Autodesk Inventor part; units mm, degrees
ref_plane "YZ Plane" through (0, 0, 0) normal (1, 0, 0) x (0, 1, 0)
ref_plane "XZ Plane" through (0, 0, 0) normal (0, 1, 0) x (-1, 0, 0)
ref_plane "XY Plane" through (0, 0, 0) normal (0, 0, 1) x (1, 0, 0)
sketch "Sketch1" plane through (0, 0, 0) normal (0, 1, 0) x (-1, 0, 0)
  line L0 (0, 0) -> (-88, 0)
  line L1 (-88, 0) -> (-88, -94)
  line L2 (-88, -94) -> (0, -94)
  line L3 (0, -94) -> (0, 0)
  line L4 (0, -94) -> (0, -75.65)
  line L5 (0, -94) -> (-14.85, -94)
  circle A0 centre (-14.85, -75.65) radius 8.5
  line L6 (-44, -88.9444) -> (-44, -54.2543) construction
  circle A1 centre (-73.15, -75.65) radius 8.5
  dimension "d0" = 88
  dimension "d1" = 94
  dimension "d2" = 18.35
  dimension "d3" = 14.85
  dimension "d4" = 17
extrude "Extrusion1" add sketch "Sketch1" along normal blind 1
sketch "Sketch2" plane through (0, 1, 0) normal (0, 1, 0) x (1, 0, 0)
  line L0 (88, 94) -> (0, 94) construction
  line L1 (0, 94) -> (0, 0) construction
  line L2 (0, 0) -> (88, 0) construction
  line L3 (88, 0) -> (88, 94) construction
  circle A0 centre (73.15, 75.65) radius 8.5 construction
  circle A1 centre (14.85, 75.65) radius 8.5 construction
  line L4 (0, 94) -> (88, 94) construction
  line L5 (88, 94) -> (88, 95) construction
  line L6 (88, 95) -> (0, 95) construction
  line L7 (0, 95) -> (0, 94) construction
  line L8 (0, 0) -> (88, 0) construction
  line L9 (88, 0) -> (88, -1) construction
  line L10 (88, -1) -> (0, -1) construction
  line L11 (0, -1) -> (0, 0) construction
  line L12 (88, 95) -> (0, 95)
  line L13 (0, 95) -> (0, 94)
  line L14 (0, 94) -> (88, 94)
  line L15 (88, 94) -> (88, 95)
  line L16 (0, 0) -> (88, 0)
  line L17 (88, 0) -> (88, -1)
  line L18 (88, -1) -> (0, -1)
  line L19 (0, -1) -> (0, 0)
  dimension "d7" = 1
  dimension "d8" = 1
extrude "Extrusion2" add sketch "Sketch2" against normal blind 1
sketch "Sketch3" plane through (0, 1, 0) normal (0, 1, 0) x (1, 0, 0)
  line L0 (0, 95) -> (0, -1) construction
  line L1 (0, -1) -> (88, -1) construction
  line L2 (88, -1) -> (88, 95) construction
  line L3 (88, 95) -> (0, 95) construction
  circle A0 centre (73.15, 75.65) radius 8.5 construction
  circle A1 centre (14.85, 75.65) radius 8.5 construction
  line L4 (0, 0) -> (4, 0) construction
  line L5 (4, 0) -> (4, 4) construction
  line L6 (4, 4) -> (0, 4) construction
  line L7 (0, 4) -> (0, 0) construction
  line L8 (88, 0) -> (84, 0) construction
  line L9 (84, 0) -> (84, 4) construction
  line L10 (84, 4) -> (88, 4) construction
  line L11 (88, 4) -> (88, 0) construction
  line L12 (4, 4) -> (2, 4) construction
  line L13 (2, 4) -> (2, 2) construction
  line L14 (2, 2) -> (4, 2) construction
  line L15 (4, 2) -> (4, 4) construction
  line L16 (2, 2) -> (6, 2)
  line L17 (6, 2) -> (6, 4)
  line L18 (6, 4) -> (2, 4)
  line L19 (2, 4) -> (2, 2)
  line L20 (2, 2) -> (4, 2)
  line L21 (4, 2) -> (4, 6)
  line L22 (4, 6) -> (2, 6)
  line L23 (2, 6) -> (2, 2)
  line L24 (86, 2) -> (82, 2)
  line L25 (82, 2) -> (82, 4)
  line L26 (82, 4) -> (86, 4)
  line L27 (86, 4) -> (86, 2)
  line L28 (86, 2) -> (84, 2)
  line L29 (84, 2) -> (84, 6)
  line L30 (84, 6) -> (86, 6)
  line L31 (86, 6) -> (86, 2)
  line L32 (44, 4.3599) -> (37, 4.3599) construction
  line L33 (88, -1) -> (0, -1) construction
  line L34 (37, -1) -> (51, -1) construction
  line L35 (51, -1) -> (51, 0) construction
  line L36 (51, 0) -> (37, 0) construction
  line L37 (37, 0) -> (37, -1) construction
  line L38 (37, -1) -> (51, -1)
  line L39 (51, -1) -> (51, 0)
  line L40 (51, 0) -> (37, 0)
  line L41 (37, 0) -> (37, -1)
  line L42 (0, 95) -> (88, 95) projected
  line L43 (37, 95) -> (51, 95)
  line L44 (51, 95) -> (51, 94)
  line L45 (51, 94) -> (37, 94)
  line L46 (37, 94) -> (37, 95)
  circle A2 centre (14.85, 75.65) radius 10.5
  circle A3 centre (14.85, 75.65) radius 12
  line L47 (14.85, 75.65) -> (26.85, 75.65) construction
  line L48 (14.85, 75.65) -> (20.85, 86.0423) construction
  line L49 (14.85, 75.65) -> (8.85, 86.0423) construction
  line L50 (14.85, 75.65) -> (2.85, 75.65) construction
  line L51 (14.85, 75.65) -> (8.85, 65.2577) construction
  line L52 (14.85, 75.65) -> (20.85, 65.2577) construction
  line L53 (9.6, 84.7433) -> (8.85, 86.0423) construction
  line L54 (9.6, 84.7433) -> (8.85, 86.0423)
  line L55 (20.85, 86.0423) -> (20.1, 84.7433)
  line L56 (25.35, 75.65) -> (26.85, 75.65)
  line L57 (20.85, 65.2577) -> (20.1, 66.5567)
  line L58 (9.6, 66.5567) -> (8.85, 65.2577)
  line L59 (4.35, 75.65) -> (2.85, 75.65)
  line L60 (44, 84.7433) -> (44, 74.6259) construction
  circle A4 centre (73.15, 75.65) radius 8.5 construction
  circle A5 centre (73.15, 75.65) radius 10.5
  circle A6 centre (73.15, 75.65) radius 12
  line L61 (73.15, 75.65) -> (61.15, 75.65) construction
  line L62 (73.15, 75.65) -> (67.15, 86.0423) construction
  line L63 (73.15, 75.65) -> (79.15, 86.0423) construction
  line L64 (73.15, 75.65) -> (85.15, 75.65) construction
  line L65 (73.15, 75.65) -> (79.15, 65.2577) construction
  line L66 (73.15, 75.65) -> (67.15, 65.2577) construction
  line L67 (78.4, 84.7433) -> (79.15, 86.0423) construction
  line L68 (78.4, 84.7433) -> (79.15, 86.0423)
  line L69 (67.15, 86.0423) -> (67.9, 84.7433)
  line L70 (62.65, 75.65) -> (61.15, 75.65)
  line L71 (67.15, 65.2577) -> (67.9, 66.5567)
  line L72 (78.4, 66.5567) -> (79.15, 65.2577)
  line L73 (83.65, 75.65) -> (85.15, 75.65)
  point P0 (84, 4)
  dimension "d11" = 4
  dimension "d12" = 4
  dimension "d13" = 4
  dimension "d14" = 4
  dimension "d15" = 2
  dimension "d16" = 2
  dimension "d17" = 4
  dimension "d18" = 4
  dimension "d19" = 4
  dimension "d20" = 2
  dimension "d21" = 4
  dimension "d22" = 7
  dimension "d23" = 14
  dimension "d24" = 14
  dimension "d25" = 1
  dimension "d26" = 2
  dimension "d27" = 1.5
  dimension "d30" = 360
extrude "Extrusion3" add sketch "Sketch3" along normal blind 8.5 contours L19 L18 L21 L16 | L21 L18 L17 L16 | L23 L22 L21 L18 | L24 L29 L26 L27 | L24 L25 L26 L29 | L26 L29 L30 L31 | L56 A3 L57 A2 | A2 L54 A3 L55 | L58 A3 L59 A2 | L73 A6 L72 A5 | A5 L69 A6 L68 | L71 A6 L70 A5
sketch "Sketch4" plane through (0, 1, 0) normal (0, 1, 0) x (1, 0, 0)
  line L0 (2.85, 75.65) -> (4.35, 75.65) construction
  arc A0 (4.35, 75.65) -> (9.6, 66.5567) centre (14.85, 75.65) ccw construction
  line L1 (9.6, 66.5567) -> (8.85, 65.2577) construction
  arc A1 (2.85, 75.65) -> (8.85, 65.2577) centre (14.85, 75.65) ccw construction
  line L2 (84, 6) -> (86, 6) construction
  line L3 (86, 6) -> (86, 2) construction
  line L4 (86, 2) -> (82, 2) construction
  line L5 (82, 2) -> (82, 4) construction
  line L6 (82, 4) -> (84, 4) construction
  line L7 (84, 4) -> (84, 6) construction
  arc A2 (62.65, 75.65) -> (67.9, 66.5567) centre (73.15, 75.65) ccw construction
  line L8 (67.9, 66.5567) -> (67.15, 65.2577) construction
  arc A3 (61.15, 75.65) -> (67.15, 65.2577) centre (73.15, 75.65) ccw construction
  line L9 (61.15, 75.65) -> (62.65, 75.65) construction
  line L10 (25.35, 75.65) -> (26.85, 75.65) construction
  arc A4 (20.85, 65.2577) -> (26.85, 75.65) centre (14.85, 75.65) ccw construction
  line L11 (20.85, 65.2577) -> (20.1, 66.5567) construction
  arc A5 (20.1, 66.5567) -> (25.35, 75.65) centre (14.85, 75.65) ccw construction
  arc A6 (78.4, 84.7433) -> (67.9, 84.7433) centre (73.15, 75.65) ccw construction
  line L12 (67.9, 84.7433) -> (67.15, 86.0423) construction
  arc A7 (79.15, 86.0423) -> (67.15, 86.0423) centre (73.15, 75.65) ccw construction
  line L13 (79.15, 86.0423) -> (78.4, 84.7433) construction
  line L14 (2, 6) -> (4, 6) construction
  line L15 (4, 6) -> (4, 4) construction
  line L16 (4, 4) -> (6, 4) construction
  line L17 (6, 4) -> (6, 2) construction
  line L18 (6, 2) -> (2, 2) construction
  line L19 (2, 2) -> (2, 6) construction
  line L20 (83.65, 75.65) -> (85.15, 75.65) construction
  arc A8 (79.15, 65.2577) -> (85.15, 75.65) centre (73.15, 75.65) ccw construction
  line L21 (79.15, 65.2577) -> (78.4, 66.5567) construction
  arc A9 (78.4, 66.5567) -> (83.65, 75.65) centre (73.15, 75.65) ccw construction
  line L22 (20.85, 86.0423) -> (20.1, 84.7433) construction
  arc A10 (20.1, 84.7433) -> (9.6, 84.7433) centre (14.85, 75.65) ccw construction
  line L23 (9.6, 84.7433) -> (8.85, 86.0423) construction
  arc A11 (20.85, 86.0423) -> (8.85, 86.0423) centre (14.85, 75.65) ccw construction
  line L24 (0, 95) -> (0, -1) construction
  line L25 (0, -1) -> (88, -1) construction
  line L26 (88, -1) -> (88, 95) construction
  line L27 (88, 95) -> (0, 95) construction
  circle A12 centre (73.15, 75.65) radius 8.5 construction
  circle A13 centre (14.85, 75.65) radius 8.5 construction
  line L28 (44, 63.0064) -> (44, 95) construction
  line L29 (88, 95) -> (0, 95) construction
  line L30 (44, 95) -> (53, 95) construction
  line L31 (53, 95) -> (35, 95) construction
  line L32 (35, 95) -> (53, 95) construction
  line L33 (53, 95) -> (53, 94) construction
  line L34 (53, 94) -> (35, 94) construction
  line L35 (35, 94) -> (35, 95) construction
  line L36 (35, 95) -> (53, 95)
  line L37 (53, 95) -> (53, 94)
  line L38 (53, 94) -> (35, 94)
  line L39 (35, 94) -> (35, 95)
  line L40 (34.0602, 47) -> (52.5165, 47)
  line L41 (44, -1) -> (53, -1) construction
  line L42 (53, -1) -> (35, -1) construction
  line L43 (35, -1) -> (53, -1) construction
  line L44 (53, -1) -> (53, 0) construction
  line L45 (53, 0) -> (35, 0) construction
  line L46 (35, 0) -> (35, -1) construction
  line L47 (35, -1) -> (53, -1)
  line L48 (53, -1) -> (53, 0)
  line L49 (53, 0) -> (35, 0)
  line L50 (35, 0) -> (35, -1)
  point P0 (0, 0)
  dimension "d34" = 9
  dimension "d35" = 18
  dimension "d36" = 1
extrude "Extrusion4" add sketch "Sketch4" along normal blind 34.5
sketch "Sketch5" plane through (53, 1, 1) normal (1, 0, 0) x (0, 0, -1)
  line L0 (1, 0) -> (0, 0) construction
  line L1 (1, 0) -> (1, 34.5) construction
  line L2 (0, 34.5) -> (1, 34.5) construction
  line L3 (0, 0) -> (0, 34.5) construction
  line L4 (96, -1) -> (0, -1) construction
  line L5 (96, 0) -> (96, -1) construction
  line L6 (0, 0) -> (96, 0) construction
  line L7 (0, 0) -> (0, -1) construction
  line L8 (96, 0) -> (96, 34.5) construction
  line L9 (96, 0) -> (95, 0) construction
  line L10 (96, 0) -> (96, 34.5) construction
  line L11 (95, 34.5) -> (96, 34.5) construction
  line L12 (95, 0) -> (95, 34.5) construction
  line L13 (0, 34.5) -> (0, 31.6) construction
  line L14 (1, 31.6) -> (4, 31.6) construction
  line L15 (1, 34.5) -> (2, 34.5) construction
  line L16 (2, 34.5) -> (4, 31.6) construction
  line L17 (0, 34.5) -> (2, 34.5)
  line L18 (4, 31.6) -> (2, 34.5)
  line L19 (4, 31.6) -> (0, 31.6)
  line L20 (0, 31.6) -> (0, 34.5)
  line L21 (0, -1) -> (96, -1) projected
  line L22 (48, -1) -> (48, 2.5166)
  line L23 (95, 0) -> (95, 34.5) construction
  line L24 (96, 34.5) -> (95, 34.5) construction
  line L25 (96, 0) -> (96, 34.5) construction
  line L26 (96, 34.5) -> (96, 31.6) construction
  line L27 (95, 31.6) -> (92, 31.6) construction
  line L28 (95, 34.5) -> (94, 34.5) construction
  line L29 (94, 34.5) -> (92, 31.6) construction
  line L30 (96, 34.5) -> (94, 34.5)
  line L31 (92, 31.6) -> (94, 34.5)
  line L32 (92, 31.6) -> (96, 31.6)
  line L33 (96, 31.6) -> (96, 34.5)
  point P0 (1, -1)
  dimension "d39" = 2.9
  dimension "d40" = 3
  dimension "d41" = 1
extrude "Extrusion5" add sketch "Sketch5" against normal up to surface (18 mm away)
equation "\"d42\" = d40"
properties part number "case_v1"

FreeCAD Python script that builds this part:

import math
import FreeCAD as App
import Part
import Sketcher
Q = App.Units.Quantity


def add_polygon(sketch, points):
    """Adds a closed chain of lines whose ends are joined by coincident constraints."""
    first, n = sketch.GeometryCount, len(points)
    for a, b in zip(points, points[1:] + points[:1]):
        sketch.addGeometry(Part.LineSegment(App.Vector(*a, 0), App.Vector(*b, 0)), False)
    for i in range(n):
        sketch.addConstraint(Sketcher.Constraint("Coincident", first + i, 2, first + (i + 1) % n, 1))

doc = App.newDocument("Part")
body = doc.addObject("PartDesign::Body", "Body")

# Sketch on XZ plane
sketch1 = doc.addObject("Sketcher::SketchObject", "Sketch")
body.addObject(sketch1)
sketch1.AttachmentSupport = (doc.XZ_Plane, [""])
sketch1.MapMode = "FlatFace"
add_polygon(sketch1, [(0, -94), (0, 0), (88, 0), (88, -94)])  # lines 0-3
sketch1.addGeometry(Part.Circle(App.Vector(73, -76, 0), App.Vector(0, 0, 1), 8), False)  # 4
sketch1.addGeometry(Part.Circle(App.Vector(15, -76, 0), App.Vector(0, 0, 1), 8), False)  # 5
sketch1.addConstraint(Sketcher.Constraint("Vertical", 0))
sketch1.addConstraint(Sketcher.Constraint("Horizontal", 1))
sketch1.addConstraint(Sketcher.Constraint("Vertical", 2))
sketch1.addConstraint(Sketcher.Constraint("Horizontal", 3))
sketch1.addConstraint(Sketcher.Constraint("Coincident", 0, 2, -1, 1))
sketch1.addConstraint(Sketcher.Constraint("Equal", 4, 5))
sketch1.addConstraint(Sketcher.Constraint("Horizontal", 4, 3, 5, 3))
sketch1.addConstraint(Sketcher.Constraint("Diameter", 4, Q("17 mm")))
sketch1.addConstraint(Sketcher.Constraint("DistanceX", 1, 1, 1, 2, Q("88 mm")))
sketch1.addConstraint(Sketcher.Constraint("DistanceY", 0, 1, 0, 2, Q("94 mm")))
sketch1.addConstraint(Sketcher.Constraint("DistanceX", -1, 1, 5, 3, Q("14.85 mm")))
sketch1.addConstraint(Sketcher.Constraint("DistanceX", 4, 3, 1, 2, Q("14.85 mm")))
sketch1.addConstraint(Sketcher.Constraint("DistanceY", 2, 2, 4, 3, Q("18.35 mm")))
pad1 = doc.addObject("PartDesign::Pad", "Pad")
body.addObject(pad1)
pad1.Profile = sketch1
pad1.Length = 1
pad1.Reversed = True

# Sketch on XZ plane
sketch2 = doc.addObject("Sketcher::SketchObject", "Sketch001")
body.addObject(sketch2)
sketch2.AttachmentSupport = (doc.XZ_Plane, [""])
sketch2.MapMode = "FlatFace"
sketch2.AttachmentOffset = App.Placement(App.Vector(0, 0, -1), App.Rotation())
add_polygon(sketch2, [(88, -94), (88, -95), (0, -95), (0, -94)])  # lines 0-3
add_polygon(sketch2, [(88, 0), (0, 0), (0, 1), (88, 1)])  # lines 4-7
sketch2.addConstraint(Sketcher.Constraint("Vertical", 0))
sketch2.addConstraint(Sketcher.Constraint("Horizontal", 1))
sketch2.addConstraint(Sketcher.Constraint("Vertical", 2))
sketch2.addConstraint(Sketcher.Constraint("Horizontal", 3))
sketch2.addConstraint(Sketcher.Constraint("Horizontal", 4))
sketch2.addConstraint(Sketcher.Constraint("Vertical", 5))
sketch2.addConstraint(Sketcher.Constraint("Horizontal", 6))
sketch2.addConstraint(Sketcher.Constraint("Vertical", 7))
sketch2.addConstraint(Sketcher.Constraint("Coincident", 4, 2, -1, 1))
sketch2.addConstraint(Sketcher.Constraint("PointOnObject", 1, 2, -2))
sketch2.addConstraint(Sketcher.Constraint("Vertical", 3, 2, 6, 2))
sketch2.addConstraint(Sketcher.Constraint("Equal", 2, 5))
sketch2.addConstraint(Sketcher.Constraint("DistanceY", 0, 2, 0, 1, Q("1 mm")))
sketch2.addConstraint(Sketcher.Constraint("DistanceX", 1, 2, 1, 1, Q("88 mm")))
sketch2.addConstraint(Sketcher.Constraint("DistanceY", 0, 2, -1, 1, Q("95 mm")))
pad2 = doc.addObject("PartDesign::Pad", "Pad001")
body.addObject(pad2)
pad2.Profile = sketch2
pad2.Length = 1

# Sketch on XZ plane
sketch3 = doc.addObject("Sketcher::SketchObject", "Sketch002")
body.addObject(sketch3)
sketch3.AttachmentSupport = (doc.XZ_Plane, [""])
sketch3.MapMode = "FlatFace"
sketch3.AttachmentOffset = App.Placement(App.Vector(0, 0, -1), App.Rotation())
add_polygon(sketch3, [(2, -2), (6, -2), (6, -4), (4, -4), (4, -6), (2, -6)])  # lines 0-5
add_polygon(sketch3, [(86, -2), (86, -6), (84, -6), (84, -4), (82, -4), (82, -2)])  # lines 6-11
sketch3.addGeometry(Part.LineSegment(App.Vector(26.9, -75.7, 0), App.Vector(25.4, -75.7, 0)), False)  # 12
sketch3.addGeometry(Part.ArcOfCircle(Part.Circle(App.Vector(14.8, -75.7, 0), App.Vector(0, 0, 1), 10.5), math.radians(0), math.radians(60)), False)  # 13
sketch3.addGeometry(Part.LineSegment(App.Vector(20.1, -66.6, 0), App.Vector(20.9, -65.3, 0)), False)  # 14
sketch3.addGeometry(Part.ArcOfCircle(Part.Circle(App.Vector(14.8, -75.7, 0), App.Vector(0, 0, 1), 12), math.radians(0), math.radians(60)), False)  # 15
sketch3.addGeometry(Part.ArcOfCircle(Part.Circle(App.Vector(14.8, -75.7, 0), App.Vector(0, 0, 1), 10.5), math.radians(-120), math.radians(-60)), False)  # 16
sketch3.addGeometry(Part.LineSegment(App.Vector(20.1, -84.7, 0), App.Vector(20.9, -86, 0)), False)  # 17
sketch3.addGeometry(Part.ArcOfCircle(Part.Circle(App.Vector(14.8, -75.7, 0), App.Vector(0, 0, 1), 12), math.radians(-120), math.radians(-60)), False)  # 18
sketch3.addGeometry(Part.LineSegment(App.Vector(8.8, -86, 0), App.Vector(9.6, -84.7, 0)), False)  # 19
sketch3.addGeometry(Part.LineSegment(App.Vector(8.8, -65.3, 0), App.Vector(9.6, -66.6, 0)), False)  # 20
sketch3.addGeometry(Part.ArcOfCircle(Part.Circle(App.Vector(14.8, -75.7, 0), App.Vector(0, 0, 1), 10.5), math.radians(120), math.radians(180)), False)  # 21
sketch3.addGeometry(Part.LineSegment(App.Vector(4.3, -75.7, 0), App.Vector(2.9, -75.7, 0)), False)  # 22
sketch3.addGeometry(Part.ArcOfCircle(Part.Circle(App.Vector(14.8, -75.7, 0), App.Vector(0, 0, 1), 12), math.radians(120), math.radians(180)), False)  # 23
sketch3.addGeometry(Part.LineSegment(App.Vector(85.2, -75.7, 0), App.Vector(83.7, -75.7, 0)), False)  # 24
sketch3.addGeometry(Part.ArcOfCircle(Part.Circle(App.Vector(73.2, -75.7, 0), App.Vector(0, 0, 1), 10.5), math.radians(0), math.radians(60)), False)  # 25
sketch3.addGeometry(Part.LineSegment(App.Vector(78.4, -66.6, 0), App.Vector(79.2, -65.3, 0)), False)  # 26
sketch3.addGeometry(Part.ArcOfCircle(Part.Circle(App.Vector(73.2, -75.7, 0), App.Vector(0, 0, 1), 12), math.radians(0), math.radians(60)), False)  # 27
sketch3.addGeometry(Part.ArcOfCircle(Part.Circle(App.Vector(73.2, -75.7, 0), App.Vector(0, 0, 1), 10.5), math.radians(-120), math.radians(-60)), False)  # 28
sketch3.addGeometry(Part.LineSegment(App.Vector(78.4, -84.7, 0), App.Vector(79.2, -86, 0)), False)  # 29
sketch3.addGeometry(Part.ArcOfCircle(Part.Circle(App.Vector(73.2, -75.7, 0), App.Vector(0, 0, 1), 12), math.radians(-120), math.radians(-60)), False)  # 30
sketch3.addGeometry(Part.LineSegment(App.Vector(67.2, -86, 0), App.Vector(67.9, -84.7, 0)), False)  # 31
sketch3.addGeometry(Part.LineSegment(App.Vector(67.2, -65.3, 0), App.Vector(67.9, -66.6, 0)), False)  # 32
sketch3.addGeometry(Part.ArcOfCircle(Part.Circle(App.Vector(73.2, -75.7, 0), App.Vector(0, 0, 1), 10.5), math.radians(120), math.radians(180)), False)  # 33
sketch3.addGeometry(Part.LineSegment(App.Vector(62.6, -75.7, 0), App.Vector(61.1, -75.7, 0)), False)  # 34
sketch3.addGeometry(Part.ArcOfCircle(Part.Circle(App.Vector(73.2, -75.7, 0), App.Vector(0, 0, 1), 12), math.radians(120), math.radians(180)), False)  # 35
sketch3.addConstraint(Sketcher.Constraint("Coincident", 12, 2, 13, 1))
sketch3.addConstraint(Sketcher.Constraint("Coincident", 13, 2, 14, 1))
sketch3.addConstraint(Sketcher.Constraint("Coincident", 14, 2, 15, 2))
sketch3.addConstraint(Sketcher.Constraint("Coincident", 15, 1, 12, 1))
sketch3.addConstraint(Sketcher.Constraint("Coincident", 16, 2, 17, 1))
sketch3.addConstraint(Sketcher.Constraint("Coincident", 17, 2, 18, 2))
sketch3.addConstraint(Sketcher.Constraint("Coincident", 18, 1, 19, 1))
sketch3.addConstraint(Sketcher.Constraint("Coincident", 19, 2, 16, 1))
sketch3.addConstraint(Sketcher.Constraint("Coincident", 20, 2, 21, 1))
sketch3.addConstraint(Sketcher.Constraint("Coincident", 21, 2, 22, 1))
sketch3.addConstraint(Sketcher.Constraint("Coincident", 22, 2, 23, 2))
sketch3.addConstraint(Sketcher.Constraint("Coincident", 23, 1, 20, 1))
sketch3.addConstraint(Sketcher.Constraint("Coincident", 24, 2, 25, 1))
sketch3.addConstraint(Sketcher.Constraint("Coincident", 25, 2, 26, 1))
sketch3.addConstraint(Sketcher.Constraint("Coincident", 26, 2, 27, 2))
sketch3.addConstraint(Sketcher.Constraint("Coincident", 27, 1, 24, 1))
sketch3.addConstraint(Sketcher.Constraint("Coincident", 28, 2, 29, 1))
sketch3.addConstraint(Sketcher.Constraint("Coincident", 29, 2, 30, 2))
sketch3.addConstraint(Sketcher.Constraint("Coincident", 30, 1, 31, 1))
sketch3.addConstraint(Sketcher.Constraint("Coincident", 31, 2, 28, 1))
sketch3.addConstraint(Sketcher.Constraint("Coincident", 32, 2, 33, 1))
sketch3.addConstraint(Sketcher.Constraint("Coincident", 33, 2, 34, 1))
sketch3.addConstraint(Sketcher.Constraint("Coincident", 34, 2, 35, 2))
sketch3.addConstraint(Sketcher.Constraint("Coincident", 35, 1, 32, 1))
sketch3.addConstraint(Sketcher.Constraint("Horizontal", 0))
sketch3.addConstraint(Sketcher.Constraint("Vertical", 1))
sketch3.addConstraint(Sketcher.Constraint("Horizontal", 2))
sketch3.addConstraint(Sketcher.Constraint("Vertical", 3))
sketch3.addConstraint(Sketcher.Constraint("Horizontal", 4))
sketch3.addConstraint(Sketcher.Constraint("Vertical", 5))
sketch3.addConstraint(Sketcher.Constraint("Vertical", 6))
sketch3.addConstraint(Sketcher.Constraint("Horizontal", 7))
sketch3.addConstraint(Sketcher.Constraint("Vertical", 8))
sketch3.addConstraint(Sketcher.Constraint("Horizontal", 9))
sketch3.addConstraint(Sketcher.Constraint("Vertical", 10))
sketch3.addConstraint(Sketcher.Constraint("Horizontal", 11))
sketch3.addConstraint(Sketcher.Constraint("Horizontal", 12))
sketch3.addConstraint(Sketcher.Constraint("Horizontal", 22))
sketch3.addConstraint(Sketcher.Constraint("Horizontal", 24))
sketch3.addConstraint(Sketcher.Constraint("Horizontal", 34))
sketch3.addConstraint(Sketcher.Constraint("Coincident", 15, 3, 13, 3))
sketch3.addConstraint(Sketcher.Constraint("Coincident", 16, 3, 13, 3))
sketch3.addConstraint(Sketcher.Constraint("Coincident", 18, 3, 13, 3))
sketch3.addConstraint(Sketcher.Constraint("Coincident", 21, 3, 13, 3))
sketch3.addConstraint(Sketcher.Constraint("Coincident", 23, 3, 13, 3))
sketch3.addConstraint(Sketcher.Constraint("Coincident", 27, 3, 25, 3))
sketch3.addConstraint(Sketcher.Constraint("Coincident", 28, 3, 25, 3))
sketch3.addConstraint(Sketcher.Constraint("Coincident", 30, 3, 25, 3))
sketch3.addConstraint(Sketcher.Constraint("Coincident", 33, 3, 25, 3))
sketch3.addConstraint(Sketcher.Constraint("Coincident", 35, 3, 25, 3))
sketch3.addConstraint(Sketcher.Constraint("Equal", 13, 16))
sketch3.addConstraint(Sketcher.Constraint("Equal", 15, 18))
sketch3.addConstraint(Sketcher.Constraint("Equal", 16, 21))
sketch3.addConstraint(Sketcher.Constraint("Equal", 18, 23))
sketch3.addConstraint(Sketcher.Constraint("Equal", 21, 25))
sketch3.addConstraint(Sketcher.Constraint("Equal", 23, 27))
sketch3.addConstraint(Sketcher.Constraint("Equal", 25, 28))
sketch3.addConstraint(Sketcher.Constraint("Equal", 27, 30))
sketch3.addConstraint(Sketcher.Constraint("Equal", 28, 33))
sketch3.addConstraint(Sketcher.Constraint("Equal", 30, 35))
sketch3.addConstraint(Sketcher.Constraint("Parallel", 14, 19))
sketch3.addConstraint(Sketcher.Constraint("Parallel", 17, 20))
sketch3.addConstraint(Sketcher.Constraint("Parallel", 19, 26))
sketch3.addConstraint(Sketcher.Constraint("Parallel", 20, 29))
sketch3.addConstraint(Sketcher.Constraint("Parallel", 26, 31))
sketch3.addConstraint(Sketcher.Constraint("Parallel", 29, 32))
sketch3.addConstraint(Sketcher.Constraint("Horizontal", 23, 3, 25, 3))
sketch3.addConstraint(Sketcher.Constraint("Horizontal", 4, 2, 6, 2))
sketch3.addConstraint(Sketcher.Constraint("Horizontal", 2, 2, 8, 2))
sketch3.addConstraint(Sketcher.Constraint("Horizontal", 5, 2, 10, 2))
sketch3.addConstraint(Sketcher.Constraint("Horizontal", 35, 3, 12, 2))
sketch3.addConstraint(Sketcher.Constraint("Horizontal", 17, 2, 18, 1))
sketch3.addConstraint(Sketcher.Constraint("Horizontal", 16, 2, 19, 2))
sketch3.addConstraint(Sketcher.Constraint("Horizontal", 13, 2, 20, 2))
sketch3.addConstraint(Sketcher.Constraint("Horizontal", 15, 1, 21, 2))
sketch3.addConstraint(Sketcher.Constraint("Horizontal", 22, 2, 24, 2))
sketch3.addConstraint(Sketcher.Constraint("Horizontal", 20, 2, 25, 2))
sketch3.addConstraint(Sketcher.Constraint("Horizontal", 19, 2, 28, 2))
sketch3.addConstraint(Sketcher.Constraint("Horizontal", 29, 2, 30, 1))
sketch3.addConstraint(Sketcher.Constraint("Horizontal", 25, 2, 32, 2))
sketch3.addConstraint(Sketcher.Constraint("Horizontal", 27, 1, 33, 2))
sketch3.addConstraint(Sketcher.Constraint("Vertical", 13, 2, 16, 2))
sketch3.addConstraint(Sketcher.Constraint("Equal", 2, 4))
sketch3.addConstraint(Sketcher.Constraint("Equal", 4, 7))
sketch3.addConstraint(Sketcher.Constraint("Equal", 7, 9))
sketch3.addConstraint(Sketcher.Constraint("Equal", 9, 1))
sketch3.addConstraint(Sketcher.Constraint("Equal", 1, 3))
sketch3.addConstraint(Sketcher.Constraint("DistanceX", 0, 1, 0, 2, Q("4 mm")))
sketch3.addConstraint(Sketcher.Constraint("DistanceX", 12, 2, 12, 1, Q("1.5 mm")))
sketch3.addConstraint(Sketcher.Constraint("DistanceY", 0, 2, -1, 1, Q("2 mm")))
sketch3.addConstraint(Sketcher.Constraint("DistanceX", -1, 1, 2, 2, Q("4 mm")))
sketch3.addConstraint(Sketcher.Constraint("Radius", 15, Q("12 mm")))
sketch3.addConstraint(Sketcher.Constraint("Angle", 14, Q("59.9993 deg")))
sketch3.addConstraint(Sketcher.Constraint("DistanceX", -1, 1, 6, 2, Q("86 mm")))
sketch3.addConstraint(Sketcher.Constraint("DistanceX", 13, 3, 14, 2, Q("6 mm")))
sketch3.addConstraint(Sketcher.Constraint("DistanceX", -1, 1, 13, 2, Q("20.1 mm")))
sketch3.addConstraint(Sketcher.Constraint("DistanceX", -1, 1, 25, 2, Q("78.4 mm")))
sketch3.addConstraint(Sketcher.Constraint("DistanceY", 13, 3, -1, 1, Q("75.65 mm")))
pad3 = doc.addObject("PartDesign::Pad", "Pad002")
body.addObject(pad3)
pad3.Profile = sketch3
pad3.Length = 8.5
pad3.Reversed = True

# Sketch on XZ plane
sketch4 = doc.addObject("Sketcher::SketchObject", "Sketch003")
body.addObject(sketch4)
sketch4.AttachmentSupport = (doc.XZ_Plane, [""])
sketch4.MapMode = "FlatFace"
sketch4.AttachmentOffset = App.Placement(App.Vector(0, 0, -1), App.Rotation())
add_polygon(sketch4, [(53, -95), (35, -95), (35, -94), (53, -94)])  # lines 0-3
add_polygon(sketch4, [(35, 0), (35, 1), (53, 1), (53, 0)])  # lines 4-7
sketch4.addConstraint(Sketcher.Constraint("Horizontal", 0))
sketch4.addConstraint(Sketcher.Constraint("Vertical", 1))
sketch4.addConstraint(Sketcher.Constraint("Horizontal", 2))
sketch4.addConstraint(Sketcher.Constraint("Vertical", 3))
sketch4.addConstraint(Sketcher.Constraint("Vertical", 4))
sketch4.addConstraint(Sketcher.Constraint("Horizontal", 5))
sketch4.addConstraint(Sketcher.Constraint("Vertical", 6))
sketch4.addConstraint(Sketcher.Constraint("Horizontal", 7))
sketch4.addConstraint(Sketcher.Constraint("PointOnObject", 6, 2, -1))
sketch4.addConstraint(Sketcher.Constraint("Vertical", 1, 2, 4, 2))
sketch4.addConstraint(Sketcher.Constraint("Vertical", 3, 2, 5, 2))
sketch4.addConstraint(Sketcher.Constraint("Equal", 3, 4))
sketch4.addConstraint(Sketcher.Constraint("DistanceX", 0, 2, 0, 1, Q("18 mm")))
sketch4.addConstraint(Sketcher.Constraint("DistanceY", 1, 1, 1, 2, Q("1 mm")))
sketch4.addConstraint(Sketcher.Constraint("DistanceX", -1, 1, 0, 2, Q("35 mm")))
sketch4.addConstraint(Sketcher.Constraint("DistanceY", 0, 2, -1, 1, Q("95 mm")))
pad4 = doc.addObject("PartDesign::Pad", "Pad003")
body.addObject(pad4)
pad4.Profile = sketch4
pad4.Length = 34.5
pad4.Reversed = True

# Sketch on YZ plane
sketch5 = doc.addObject("Sketcher::SketchObject", "Sketch004")
body.addObject(sketch5)
sketch5.AttachmentSupport = (doc.YZ_Plane, [""])
sketch5.MapMode = "FlatFace"
sketch5.AttachmentOffset = App.Placement(App.Vector(0, 0, 53), App.Rotation())
add_polygon(sketch5, [(35.5, -1), (35.5, 1), (32.6, 1), (32.6, -3)])  # lines 0-3
add_polygon(sketch5, [(32.6, -95), (35.5, -95), (35.5, -93), (32.6, -91)])  # lines 4-7
sketch5.addConstraint(Sketcher.Constraint("Vertical", 0))
sketch5.addConstraint(Sketcher.Constraint("Horizontal", 1))
sketch5.addConstraint(Sketcher.Constraint("Vertical", 2))
sketch5.addConstraint(Sketcher.Constraint("Horizontal", 4))
sketch5.addConstraint(Sketcher.Constraint("Vertical", 5))
sketch5.addConstraint(Sketcher.Constraint("Vertical", 7))
sketch5.addConstraint(Sketcher.Constraint("Vertical", 3, 2, 4, 2))
sketch5.addConstraint(Sketcher.Constraint("Vertical", 2, 2, 6, 2))
sketch5.addConstraint(Sketcher.Constraint("Equal", 0, 5))
sketch5.addConstraint(Sketcher.Constraint("Equal", 2, 7))
sketch5.addConstraint(Sketcher.Constraint("DistanceX", 1, 2, 1, 1, Q("2.9 mm")))
sketch5.addConstraint(Sketcher.Constraint("DistanceY", -1, 1, 0, 2, Q("1 mm")))
sketch5.addConstraint(Sketcher.Constraint("DistanceY", 2, 2, -1, 1, Q("3 mm")))
sketch5.addConstraint(Sketcher.Constraint("DistanceY", 3, 2, -1, 1, Q("1 mm")))
sketch5.addConstraint(Sketcher.Constraint("DistanceY", 4, 2, -1, 1, Q("95 mm")))
sketch5.addConstraint(Sketcher.Constraint("DistanceX", -1, 1, 0, 2, Q("35.5 mm")))
pad5 = doc.addObject("PartDesign::Pad", "Pad004")
body.addObject(pad5)
pad5.Profile = sketch5
pad5.Length = 18
pad5.Reversed = True

doc.recompute()
